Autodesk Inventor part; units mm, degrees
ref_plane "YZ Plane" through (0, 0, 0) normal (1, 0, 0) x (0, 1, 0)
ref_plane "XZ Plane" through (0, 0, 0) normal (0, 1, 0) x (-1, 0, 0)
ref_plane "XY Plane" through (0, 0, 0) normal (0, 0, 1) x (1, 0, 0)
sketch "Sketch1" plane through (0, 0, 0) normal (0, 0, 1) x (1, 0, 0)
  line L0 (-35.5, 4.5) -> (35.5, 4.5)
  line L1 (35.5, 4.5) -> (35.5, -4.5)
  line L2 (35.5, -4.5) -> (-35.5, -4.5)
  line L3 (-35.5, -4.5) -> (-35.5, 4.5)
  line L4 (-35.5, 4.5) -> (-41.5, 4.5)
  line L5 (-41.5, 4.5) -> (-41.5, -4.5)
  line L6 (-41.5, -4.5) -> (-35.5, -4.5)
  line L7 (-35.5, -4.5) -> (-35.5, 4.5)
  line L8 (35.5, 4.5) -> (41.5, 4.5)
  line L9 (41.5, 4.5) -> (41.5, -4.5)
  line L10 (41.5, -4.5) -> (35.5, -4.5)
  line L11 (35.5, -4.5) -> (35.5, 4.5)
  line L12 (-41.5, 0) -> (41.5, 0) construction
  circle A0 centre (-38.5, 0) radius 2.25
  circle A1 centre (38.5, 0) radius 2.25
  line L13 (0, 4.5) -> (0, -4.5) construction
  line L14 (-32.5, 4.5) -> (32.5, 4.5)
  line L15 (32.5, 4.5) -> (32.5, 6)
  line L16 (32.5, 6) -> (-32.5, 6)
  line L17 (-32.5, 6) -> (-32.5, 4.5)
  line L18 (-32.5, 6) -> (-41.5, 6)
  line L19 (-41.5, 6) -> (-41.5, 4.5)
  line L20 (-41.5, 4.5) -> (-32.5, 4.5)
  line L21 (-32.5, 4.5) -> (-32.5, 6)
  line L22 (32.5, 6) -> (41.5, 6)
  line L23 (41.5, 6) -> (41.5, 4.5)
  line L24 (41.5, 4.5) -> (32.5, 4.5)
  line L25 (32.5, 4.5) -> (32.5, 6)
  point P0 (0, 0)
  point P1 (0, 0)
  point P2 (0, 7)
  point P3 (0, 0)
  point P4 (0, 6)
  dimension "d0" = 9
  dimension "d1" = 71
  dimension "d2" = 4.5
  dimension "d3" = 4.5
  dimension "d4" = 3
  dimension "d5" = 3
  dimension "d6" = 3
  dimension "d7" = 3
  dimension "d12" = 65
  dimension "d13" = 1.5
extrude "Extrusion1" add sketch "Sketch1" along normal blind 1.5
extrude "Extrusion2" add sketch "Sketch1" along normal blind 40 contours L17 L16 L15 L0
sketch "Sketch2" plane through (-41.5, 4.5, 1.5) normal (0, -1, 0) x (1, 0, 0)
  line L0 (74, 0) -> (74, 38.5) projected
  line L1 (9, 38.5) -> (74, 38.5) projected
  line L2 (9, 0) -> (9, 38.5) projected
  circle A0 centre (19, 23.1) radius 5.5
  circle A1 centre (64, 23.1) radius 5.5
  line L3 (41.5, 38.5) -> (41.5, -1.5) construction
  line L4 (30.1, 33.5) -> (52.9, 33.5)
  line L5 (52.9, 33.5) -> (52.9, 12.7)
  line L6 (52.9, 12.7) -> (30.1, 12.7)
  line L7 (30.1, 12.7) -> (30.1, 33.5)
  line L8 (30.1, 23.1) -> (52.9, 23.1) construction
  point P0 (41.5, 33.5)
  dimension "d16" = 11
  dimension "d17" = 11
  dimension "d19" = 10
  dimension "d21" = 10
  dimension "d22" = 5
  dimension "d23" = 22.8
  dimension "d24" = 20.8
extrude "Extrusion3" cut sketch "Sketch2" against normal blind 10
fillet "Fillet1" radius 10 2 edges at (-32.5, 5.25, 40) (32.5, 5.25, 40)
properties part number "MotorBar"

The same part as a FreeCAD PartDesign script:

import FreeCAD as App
import Part
import Sketcher

V = App.Vector
Q = App.Units.Quantity


def edges_at(feature, points):
    """Names of the edges that pass closest to the given points."""
    edges = feature.Shape.Edges
    near = lambda p: min(range(len(edges)), key=lambda i: edges[i].distToShape(Part.Vertex(*p))[0])
    return sorted({f"Edge{near(p) + 1}" for p in points})

doc = App.newDocument("Part")
body = doc.addObject("PartDesign::Body", "Body")

# Sketch on XY plane
sketch1 = doc.addObject("Sketcher::SketchObject", "Sketch")
body.addObject(sketch1)
sketch1.AttachmentSupport = (doc.XY_Plane, [""])
sketch1.MapMode = "FlatFace"
sketch1.addGeometry([
    Part.LineSegment(V(-41.5, 6, 0), V(-41.5, -4.5, 0)),  # 0
    Part.LineSegment(V(-41.5, -4.5, 0), V(41.5, -4.5, 0)),  # 1
    Part.LineSegment(V(41.5, -4.5, 0), V(41.5, 6, 0)),  # 2
    Part.LineSegment(V(41.5, 6, 0), V(-41.5, 6, 0)),  # 3
    Part.Circle(V(-38.5, 0, 0), V(0, 0, 1), 2.25),  # 4
    Part.Circle(V(38.5, 0, 0), V(0, 0, 1), 2.25),  # 5
], False)
sketch1.addConstraint([
    Sketcher.Constraint("Coincident", 0, 2, 1, 1),
    Sketcher.Constraint("Coincident", 1, 2, 2, 1),
    Sketcher.Constraint("Coincident", 2, 2, 3, 1),
    Sketcher.Constraint("Coincident", 3, 2, 0, 1),
    Sketcher.Constraint("Vertical", 0),
    Sketcher.Constraint("Horizontal", 1),
    Sketcher.Constraint("Vertical", 2),
    Sketcher.Constraint("Horizontal", 3),
    Sketcher.Constraint("Equal", 4, 5),
    Sketcher.Constraint("Symmetric", 4, 3, 5, 3, -1, 1),
    Sketcher.Constraint("PointOnObject", 4, 3, -1),
    Sketcher.Constraint("Diameter", 4, Q("4.5 mm")),
    Sketcher.Constraint("DistanceX", 0, 2, 4, 3, Q("3 mm")),
    Sketcher.Constraint("DistanceX", 5, 3, 1, 2, Q("3 mm")),
    Sketcher.Constraint("DistanceY", 0, 2, -1, 1, Q("4.5 mm")),
    Sketcher.Constraint("DistanceX", 1, 1, 1, 2, Q("83 mm")),
    Sketcher.Constraint("DistanceY", 0, 2, 0, 1, Q("10.5 mm")),
])
pad1 = doc.addObject("PartDesign::Pad", "Pad")
body.addObject(pad1)
pad1.Profile = sketch1
pad1.Length = 1.5

# Sketch on XY plane
sketch2 = doc.addObject("Sketcher::SketchObject", "Sketch001")
body.addObject(sketch2)
sketch2.AttachmentSupport = (doc.XY_Plane, [""])
sketch2.MapMode = "FlatFace"
sketch2.addGeometry([
    Part.LineSegment(V(-32.5, 6, 0), V(-32.5, 4.5, 0)),
    Part.LineSegment(V(-32.5, 4.5, 0), V(32.5, 4.5, 0)),
    Part.LineSegment(V(32.5, 4.5, 0), V(32.5, 6, 0)),
    Part.LineSegment(V(32.5, 6, 0), V(-32.5, 6, 0)),
], False)
sketch2.addConstraint([
    Sketcher.Constraint("Coincident", 0, 2, 1, 1),
    Sketcher.Constraint("Coincident", 1, 2, 2, 1),
    Sketcher.Constraint("Coincident", 2, 2, 3, 1),
    Sketcher.Constraint("Coincident", 3, 2, 0, 1),
    Sketcher.Constraint("Vertical", 0),
    Sketcher.Constraint("Horizontal", 1),
    Sketcher.Constraint("Vertical", 2),
    Sketcher.Constraint("Horizontal", 3),
    Sketcher.Constraint("DistanceX", 1, 1, 1, 2, Q("65 mm")),
    Sketcher.Constraint("DistanceY", 0, 2, 0, 1, Q("1.5 mm")),
    Sketcher.Constraint("DistanceY", -1, 1, 0, 2, Q("4.5 mm")),
    Sketcher.Constraint("DistanceX", 0, 2, -1, 1, Q("32.5 mm")),
])
pad2 = doc.addObject("PartDesign::Pad", "Pad001")
body.addObject(pad2)
pad2.Profile = sketch2
pad2.Length = 40

# Sketch on XZ plane
sketch3 = doc.addObject("Sketcher::SketchObject", "Sketch002")
body.addObject(sketch3)
sketch3.AttachmentSupport = (doc.XZ_Plane, [""])
sketch3.MapMode = "FlatFace"
sketch3.AttachmentOffset = App.Placement(V(0, 0, -4.5), App.Rotation())
sketch3.addGeometry([
    Part.Circle(V(-22.5, 24.6, 0), V(0, 0, 1), 5.5),  # 0
    Part.Circle(V(22.5, 24.6, 0), V(0, 0, 1), 5.5),  # 1
    Part.LineSegment(V(11.4, 35, 0), V(-11.4, 35, 0)),  # 2
    Part.LineSegment(V(-11.4, 35, 0), V(-11.4, 14.2, 0)),  # 3
    Part.LineSegment(V(-11.4, 14.2, 0), V(11.4, 14.2, 0)),  # 4
    Part.LineSegment(V(11.4, 14.2, 0), V(11.4, 35, 0)),  # 5
], False)
sketch3.addConstraint([
    Sketcher.Constraint("Coincident", 2, 2, 3, 1),
    Sketcher.Constraint("Coincident", 3, 2, 4, 1),
    Sketcher.Constraint("Coincident", 4, 2, 5, 1),
    Sketcher.Constraint("Coincident", 5, 2, 2, 1),
    Sketcher.Constraint("Horizontal", 2),
    Sketcher.Constraint("Vertical", 3),
    Sketcher.Constraint("Horizontal", 4),
    Sketcher.Constraint("Vertical", 5),
    Sketcher.Constraint("Equal", 0, 1),
    Sketcher.Constraint("Symmetric", 0, 3, 1, 3, -2),
    Sketcher.Constraint("Diameter", 0, Q("11 mm")),
    Sketcher.Constraint("DistanceX", 2, 2, 2, 1, Q("22.8 mm")),
    Sketcher.Constraint("DistanceY", 3, 2, 3, 1, Q("20.8 mm")),
    Sketcher.Constraint("DistanceY", -1, 1, 2, 2, Q("35 mm")),
    Sketcher.Constraint("DistanceX", 0, 3, 1, 3, Q("45 mm")),
    Sketcher.Constraint("DistanceY", -1, 1, 0, 3, Q("24.6 mm")),
    Sketcher.Constraint("DistanceX", 2, 2, -1, 1, Q("11.4 mm")),
])
pocket1 = doc.addObject("PartDesign::Pocket", "Pocket")
body.addObject(pocket1)
pocket1.Profile = sketch3
pocket1.Length = 10
doc.recompute()

fillet = doc.addObject("PartDesign::Fillet", "Fillet")
body.addObject(fillet)
fillet.Base = (pocket1, edges_at(pocket1, [(-32.5, 5.25, 40), (32.5, 5.25, 40)]))
fillet.Radius = 10

doc.recompute()
